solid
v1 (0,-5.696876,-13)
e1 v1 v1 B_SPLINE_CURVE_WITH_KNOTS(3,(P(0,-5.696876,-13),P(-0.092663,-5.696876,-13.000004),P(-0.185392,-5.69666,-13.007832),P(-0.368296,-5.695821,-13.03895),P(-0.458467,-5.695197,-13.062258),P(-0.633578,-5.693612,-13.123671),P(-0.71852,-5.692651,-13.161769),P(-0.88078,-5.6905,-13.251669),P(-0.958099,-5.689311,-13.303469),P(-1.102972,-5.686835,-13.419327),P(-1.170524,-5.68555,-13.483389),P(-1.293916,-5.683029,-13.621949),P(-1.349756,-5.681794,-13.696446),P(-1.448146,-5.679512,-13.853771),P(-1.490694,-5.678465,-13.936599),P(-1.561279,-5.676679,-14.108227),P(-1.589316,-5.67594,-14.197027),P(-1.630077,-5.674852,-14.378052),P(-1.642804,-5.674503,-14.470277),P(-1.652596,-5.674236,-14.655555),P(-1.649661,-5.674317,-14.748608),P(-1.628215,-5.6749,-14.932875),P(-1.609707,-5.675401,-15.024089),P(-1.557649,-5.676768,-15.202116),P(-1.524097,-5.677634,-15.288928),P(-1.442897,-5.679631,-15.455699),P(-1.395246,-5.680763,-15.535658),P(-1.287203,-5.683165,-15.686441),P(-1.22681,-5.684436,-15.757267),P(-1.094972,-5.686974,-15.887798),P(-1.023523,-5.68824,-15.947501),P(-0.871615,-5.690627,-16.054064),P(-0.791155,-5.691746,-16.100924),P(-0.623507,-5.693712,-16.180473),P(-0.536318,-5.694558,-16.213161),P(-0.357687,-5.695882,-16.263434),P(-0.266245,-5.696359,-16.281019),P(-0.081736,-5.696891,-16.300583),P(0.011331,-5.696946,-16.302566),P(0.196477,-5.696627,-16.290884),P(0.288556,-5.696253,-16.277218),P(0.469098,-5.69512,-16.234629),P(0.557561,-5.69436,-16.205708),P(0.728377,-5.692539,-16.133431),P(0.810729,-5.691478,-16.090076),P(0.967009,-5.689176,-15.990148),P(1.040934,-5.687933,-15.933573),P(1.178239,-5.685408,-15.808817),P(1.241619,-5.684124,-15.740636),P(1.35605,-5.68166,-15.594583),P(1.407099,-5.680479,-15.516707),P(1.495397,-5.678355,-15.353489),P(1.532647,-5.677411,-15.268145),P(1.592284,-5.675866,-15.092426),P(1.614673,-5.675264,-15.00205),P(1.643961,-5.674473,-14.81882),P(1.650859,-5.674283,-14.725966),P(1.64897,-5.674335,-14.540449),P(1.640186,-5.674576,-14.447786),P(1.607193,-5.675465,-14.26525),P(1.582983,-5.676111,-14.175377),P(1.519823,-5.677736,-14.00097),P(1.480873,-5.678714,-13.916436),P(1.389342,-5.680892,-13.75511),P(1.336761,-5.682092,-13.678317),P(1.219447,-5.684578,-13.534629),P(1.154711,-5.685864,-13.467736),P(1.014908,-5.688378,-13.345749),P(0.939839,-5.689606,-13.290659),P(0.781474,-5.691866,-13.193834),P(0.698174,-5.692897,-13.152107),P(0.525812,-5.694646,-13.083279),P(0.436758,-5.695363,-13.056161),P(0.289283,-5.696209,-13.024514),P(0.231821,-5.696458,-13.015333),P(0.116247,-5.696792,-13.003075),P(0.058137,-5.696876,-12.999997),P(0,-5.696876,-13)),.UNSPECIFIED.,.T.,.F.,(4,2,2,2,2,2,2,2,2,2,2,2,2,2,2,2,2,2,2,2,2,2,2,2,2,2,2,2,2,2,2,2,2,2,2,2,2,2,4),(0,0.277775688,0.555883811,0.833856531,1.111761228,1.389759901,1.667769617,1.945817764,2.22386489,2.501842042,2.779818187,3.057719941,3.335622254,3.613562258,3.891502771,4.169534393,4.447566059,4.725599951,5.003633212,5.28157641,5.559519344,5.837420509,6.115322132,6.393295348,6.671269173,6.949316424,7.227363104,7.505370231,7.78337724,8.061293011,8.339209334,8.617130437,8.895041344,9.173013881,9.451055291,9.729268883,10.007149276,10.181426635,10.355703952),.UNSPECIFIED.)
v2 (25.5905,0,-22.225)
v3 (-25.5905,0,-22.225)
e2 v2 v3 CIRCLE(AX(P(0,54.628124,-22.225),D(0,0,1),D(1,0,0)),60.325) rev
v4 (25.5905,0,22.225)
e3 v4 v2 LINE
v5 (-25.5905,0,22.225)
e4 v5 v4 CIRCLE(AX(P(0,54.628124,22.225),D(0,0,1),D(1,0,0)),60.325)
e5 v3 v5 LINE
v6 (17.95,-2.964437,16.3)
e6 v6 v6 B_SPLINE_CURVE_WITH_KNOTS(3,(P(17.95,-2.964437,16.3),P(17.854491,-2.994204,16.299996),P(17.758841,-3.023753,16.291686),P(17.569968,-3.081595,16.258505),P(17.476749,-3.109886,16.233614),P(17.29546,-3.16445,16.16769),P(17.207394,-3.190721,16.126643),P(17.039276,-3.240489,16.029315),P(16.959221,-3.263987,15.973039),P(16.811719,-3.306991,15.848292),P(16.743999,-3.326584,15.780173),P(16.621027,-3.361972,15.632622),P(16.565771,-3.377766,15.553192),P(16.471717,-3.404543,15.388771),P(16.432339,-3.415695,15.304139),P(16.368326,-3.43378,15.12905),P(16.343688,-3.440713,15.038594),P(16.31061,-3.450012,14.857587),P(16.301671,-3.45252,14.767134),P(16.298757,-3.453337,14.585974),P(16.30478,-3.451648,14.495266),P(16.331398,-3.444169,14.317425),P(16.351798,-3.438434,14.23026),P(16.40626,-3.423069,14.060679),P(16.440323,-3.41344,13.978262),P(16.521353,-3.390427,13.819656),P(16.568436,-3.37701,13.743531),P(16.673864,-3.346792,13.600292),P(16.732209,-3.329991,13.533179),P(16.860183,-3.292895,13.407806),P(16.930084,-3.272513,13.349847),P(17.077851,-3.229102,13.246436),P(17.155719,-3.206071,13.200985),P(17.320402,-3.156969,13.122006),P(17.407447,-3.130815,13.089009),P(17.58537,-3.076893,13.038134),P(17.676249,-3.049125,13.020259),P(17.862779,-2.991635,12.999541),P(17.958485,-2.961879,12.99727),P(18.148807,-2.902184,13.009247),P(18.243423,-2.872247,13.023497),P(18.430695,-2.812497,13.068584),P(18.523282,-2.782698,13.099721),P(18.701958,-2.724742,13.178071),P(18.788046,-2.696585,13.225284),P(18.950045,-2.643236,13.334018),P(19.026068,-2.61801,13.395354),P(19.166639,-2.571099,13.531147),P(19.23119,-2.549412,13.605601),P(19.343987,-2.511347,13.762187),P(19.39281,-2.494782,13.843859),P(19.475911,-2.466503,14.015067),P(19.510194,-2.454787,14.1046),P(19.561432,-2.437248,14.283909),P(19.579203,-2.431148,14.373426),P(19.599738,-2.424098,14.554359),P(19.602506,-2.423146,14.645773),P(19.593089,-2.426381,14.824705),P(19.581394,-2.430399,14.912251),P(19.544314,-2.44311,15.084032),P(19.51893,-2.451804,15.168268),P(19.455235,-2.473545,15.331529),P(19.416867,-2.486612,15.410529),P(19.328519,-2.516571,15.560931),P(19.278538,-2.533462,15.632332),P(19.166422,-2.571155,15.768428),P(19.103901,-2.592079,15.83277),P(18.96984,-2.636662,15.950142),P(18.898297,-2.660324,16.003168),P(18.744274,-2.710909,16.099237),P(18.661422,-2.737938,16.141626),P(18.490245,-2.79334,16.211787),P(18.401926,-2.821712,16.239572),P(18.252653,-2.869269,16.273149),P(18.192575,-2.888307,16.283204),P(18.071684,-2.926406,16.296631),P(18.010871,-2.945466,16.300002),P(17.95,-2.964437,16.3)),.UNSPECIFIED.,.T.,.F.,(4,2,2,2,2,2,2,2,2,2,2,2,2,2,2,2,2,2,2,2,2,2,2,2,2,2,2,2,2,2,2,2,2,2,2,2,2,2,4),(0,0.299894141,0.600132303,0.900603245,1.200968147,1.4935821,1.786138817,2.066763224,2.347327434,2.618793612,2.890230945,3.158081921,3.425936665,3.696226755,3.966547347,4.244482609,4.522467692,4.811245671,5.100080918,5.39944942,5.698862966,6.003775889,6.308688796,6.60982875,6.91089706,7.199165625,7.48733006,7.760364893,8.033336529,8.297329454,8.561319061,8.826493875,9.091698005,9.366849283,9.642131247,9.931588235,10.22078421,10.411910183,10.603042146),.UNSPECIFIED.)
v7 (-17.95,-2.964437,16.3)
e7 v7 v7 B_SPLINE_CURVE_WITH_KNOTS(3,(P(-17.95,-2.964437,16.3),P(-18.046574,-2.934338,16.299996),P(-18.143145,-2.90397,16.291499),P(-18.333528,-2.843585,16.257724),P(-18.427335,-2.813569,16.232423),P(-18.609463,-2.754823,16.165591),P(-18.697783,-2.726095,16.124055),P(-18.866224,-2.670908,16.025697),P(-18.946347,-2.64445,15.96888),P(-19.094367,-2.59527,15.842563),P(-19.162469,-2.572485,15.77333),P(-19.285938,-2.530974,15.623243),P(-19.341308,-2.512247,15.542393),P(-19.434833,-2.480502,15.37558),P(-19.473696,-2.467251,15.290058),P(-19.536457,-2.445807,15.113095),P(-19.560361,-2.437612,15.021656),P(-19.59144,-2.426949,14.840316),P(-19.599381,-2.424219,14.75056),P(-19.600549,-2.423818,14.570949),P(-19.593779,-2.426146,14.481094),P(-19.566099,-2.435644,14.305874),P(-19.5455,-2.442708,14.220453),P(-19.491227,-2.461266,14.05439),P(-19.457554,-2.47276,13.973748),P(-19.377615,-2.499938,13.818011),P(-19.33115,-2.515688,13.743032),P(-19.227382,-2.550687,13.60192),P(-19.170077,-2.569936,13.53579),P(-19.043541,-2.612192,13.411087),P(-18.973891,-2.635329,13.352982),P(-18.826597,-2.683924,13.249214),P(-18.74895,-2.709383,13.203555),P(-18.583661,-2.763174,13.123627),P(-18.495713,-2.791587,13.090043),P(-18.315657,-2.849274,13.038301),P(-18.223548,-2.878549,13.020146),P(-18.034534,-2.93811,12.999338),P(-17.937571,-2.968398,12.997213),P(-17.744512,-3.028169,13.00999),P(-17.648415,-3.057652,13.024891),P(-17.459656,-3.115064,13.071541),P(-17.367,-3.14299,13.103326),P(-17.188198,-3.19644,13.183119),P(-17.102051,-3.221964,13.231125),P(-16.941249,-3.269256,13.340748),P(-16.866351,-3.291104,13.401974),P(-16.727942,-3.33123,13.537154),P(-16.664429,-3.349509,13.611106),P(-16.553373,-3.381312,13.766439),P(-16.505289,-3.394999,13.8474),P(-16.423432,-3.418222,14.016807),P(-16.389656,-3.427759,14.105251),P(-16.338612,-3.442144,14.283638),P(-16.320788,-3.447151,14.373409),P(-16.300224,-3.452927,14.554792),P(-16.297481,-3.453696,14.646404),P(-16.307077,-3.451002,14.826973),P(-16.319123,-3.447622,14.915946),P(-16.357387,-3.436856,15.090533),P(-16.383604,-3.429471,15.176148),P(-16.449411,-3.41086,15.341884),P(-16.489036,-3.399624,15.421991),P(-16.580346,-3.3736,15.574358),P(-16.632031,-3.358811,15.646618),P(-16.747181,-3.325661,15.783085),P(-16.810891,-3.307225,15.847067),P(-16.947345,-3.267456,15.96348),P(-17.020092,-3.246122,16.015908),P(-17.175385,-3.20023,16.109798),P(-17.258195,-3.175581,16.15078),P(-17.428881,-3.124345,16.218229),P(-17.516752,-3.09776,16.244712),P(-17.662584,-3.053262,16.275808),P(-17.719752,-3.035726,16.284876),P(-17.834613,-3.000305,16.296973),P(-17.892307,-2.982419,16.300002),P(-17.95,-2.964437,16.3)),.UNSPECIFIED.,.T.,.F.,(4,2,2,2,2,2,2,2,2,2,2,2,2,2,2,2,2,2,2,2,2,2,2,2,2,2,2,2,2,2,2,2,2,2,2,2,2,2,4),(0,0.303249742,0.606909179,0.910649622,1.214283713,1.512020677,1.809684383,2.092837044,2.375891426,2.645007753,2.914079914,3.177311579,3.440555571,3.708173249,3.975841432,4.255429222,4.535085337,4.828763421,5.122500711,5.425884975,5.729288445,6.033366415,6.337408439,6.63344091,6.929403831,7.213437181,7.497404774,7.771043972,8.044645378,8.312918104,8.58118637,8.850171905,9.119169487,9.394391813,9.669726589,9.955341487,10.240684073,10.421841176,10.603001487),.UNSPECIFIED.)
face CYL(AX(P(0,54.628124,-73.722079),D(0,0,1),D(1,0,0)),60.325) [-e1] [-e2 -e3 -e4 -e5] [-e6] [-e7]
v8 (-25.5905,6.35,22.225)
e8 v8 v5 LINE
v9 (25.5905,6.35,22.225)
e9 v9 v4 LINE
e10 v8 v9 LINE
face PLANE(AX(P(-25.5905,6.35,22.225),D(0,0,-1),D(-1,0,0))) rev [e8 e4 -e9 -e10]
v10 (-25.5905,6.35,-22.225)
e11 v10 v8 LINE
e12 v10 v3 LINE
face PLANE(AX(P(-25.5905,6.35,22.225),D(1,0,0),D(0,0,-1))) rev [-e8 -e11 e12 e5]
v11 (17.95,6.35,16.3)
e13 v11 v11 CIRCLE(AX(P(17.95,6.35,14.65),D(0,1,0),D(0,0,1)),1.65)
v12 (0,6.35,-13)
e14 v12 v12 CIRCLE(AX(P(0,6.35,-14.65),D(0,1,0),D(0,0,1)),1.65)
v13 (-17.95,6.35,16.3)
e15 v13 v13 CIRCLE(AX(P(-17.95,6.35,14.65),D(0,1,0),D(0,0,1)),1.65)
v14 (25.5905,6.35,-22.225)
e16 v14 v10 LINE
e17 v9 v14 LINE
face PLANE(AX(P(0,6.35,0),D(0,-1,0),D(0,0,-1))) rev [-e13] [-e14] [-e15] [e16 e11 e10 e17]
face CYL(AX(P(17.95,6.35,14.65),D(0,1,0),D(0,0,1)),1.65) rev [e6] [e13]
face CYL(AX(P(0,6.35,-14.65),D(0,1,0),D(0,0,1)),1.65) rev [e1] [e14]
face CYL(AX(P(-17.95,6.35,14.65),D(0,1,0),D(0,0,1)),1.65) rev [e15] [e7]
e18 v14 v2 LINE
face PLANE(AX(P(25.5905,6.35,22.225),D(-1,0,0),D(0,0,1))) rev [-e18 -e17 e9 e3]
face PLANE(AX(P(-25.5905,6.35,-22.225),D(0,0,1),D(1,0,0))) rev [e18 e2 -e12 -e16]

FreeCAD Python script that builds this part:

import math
import FreeCAD as App
import Part
import Sketcher
Q = App.Units.Quantity

doc = App.newDocument("Part")
body = doc.addObject("PartDesign::Body", "Body")

# Sketch on XZ plane
sketch1 = body.newObject("Sketcher::SketchObject", "Sketch")
sketch1.AttachmentSupport = (doc.getObject("XZ_Plane"), [""])
sketch1.MapMode = "FlatFace"
sketch1.addGeometry([
    Part.LineSegment(App.Vector(-26, -22, 0), App.Vector(-26, 22, 0)),
    Part.LineSegment(App.Vector(-26, 22, 0), App.Vector(26, 22, 0)),
    Part.LineSegment(App.Vector(26, 22, 0), App.Vector(26, -22, 0)),
    Part.LineSegment(App.Vector(26, -22, 0), App.Vector(-26, -22, 0)),
], False)
sketch1.addConstraint([
    Sketcher.Constraint("Coincident", 0, 2, 1, 1),
    Sketcher.Constraint("Coincident", 1, 2, 2, 1),
    Sketcher.Constraint("Coincident", 2, 2, 3, 1),
    Sketcher.Constraint("Coincident", 3, 2, 0, 1),
    Sketcher.Constraint("Vertical", 0),
    Sketcher.Constraint("Horizontal", 1),
    Sketcher.Constraint("Vertical", 2),
    Sketcher.Constraint("Horizontal", 3),
    Sketcher.Constraint("Symmetric", 0, 2, 2, 2, -1, 1),
    Sketcher.Constraint("DistanceY", 0, 1, 0, 2, Q("1.75 in")),
    Sketcher.Constraint("DistanceX", 1, 1, 1, 2, Q("2.015 in")),
])
pad1 = body.newObject("PartDesign::Pad", "Pad")
pad1.Profile = sketch1
pad1.Length = Q("0.25 in")
pad1.Reversed = True

# Sketch on XY plane
sketch2 = body.newObject("Sketcher::SketchObject", "Sketch001")
sketch2.AttachmentSupport = (doc.getObject("XY_Plane"), [""])
sketch2.MapMode = "FlatFace"
sketch2.AttachmentOffset = App.Placement(App.Vector(0, 0, 0.875 * 25.4), App.Rotation())
sketch2.addGeometry([
    Part.LineSegment(App.Vector(26, 0, 0), App.Vector(-26, 0, 0)),
    Part.ArcOfCircle(Part.Circle(App.Vector(0, 55, 0), App.Vector(0, 0, 1), 60), math.radians(-115), math.radians(-65)),
], False)
sketch2.addConstraint([
    Sketcher.Constraint("Coincident", 0, 1, 1, 2),
    Sketcher.Constraint("Coincident", 1, 1, 0, 2),
    Sketcher.Constraint("Horizontal", 0),
    Sketcher.Constraint("Symmetric", 0, 1, 1, 1, -1, 1),
    Sketcher.Constraint("Radius", 1, Q("2.375 in")),
    Sketcher.Constraint("DistanceX", 0, 2, 0, 1, Q("2.015 in")),
])
pad2 = body.newObject("PartDesign::Pad", "Pad001")
pad2.Profile = sketch2
pad2.Length = Q("1.75 in")
pad2.Reversed = True

# Sketch on XZ plane
sketch3 = body.newObject("Sketcher::SketchObject", "Sketch002")
sketch3.AttachmentSupport = (doc.getObject("XZ_Plane"), [""])
sketch3.MapMode = "FlatFace"
sketch3.AttachmentOffset = App.Placement(App.Vector(0, 0, -0.25 * 25.4), App.Rotation())
sketch3.addGeometry([
    Part.Circle(App.Vector(0, -14.7, 0), App.Vector(0, 0, 1), 1.6),
    Part.Circle(App.Vector(-18, 14.7, 0), App.Vector(0, 0, 1), 1.6),
    Part.Circle(App.Vector(18, 14.7, 0), App.Vector(0, 0, 1), 1.6),
], False)
sketch3.addConstraint([
    Sketcher.Constraint("Equal", 0, 1),
    Sketcher.Constraint("Equal", 1, 2),
    Sketcher.Constraint("Symmetric", 1, 3, 2, 3, -2),
    Sketcher.Constraint("PointOnObject", 0, 3, -2),
    Sketcher.Constraint("Diameter", 0, 3.3),
    Sketcher.Constraint("DistanceY", 0, 3, -1, 1, 14.65),
    Sketcher.Constraint("DistanceX", 1, 3, -1, 1, 17.95),
    Sketcher.Constraint("DistanceY", -1, 1, 1, 3, 14.65),
])
doc.recompute()
hole = body.newObject("PartDesign::Hole", "Hole")
hole.Profile = sketch3
hole.ThreadType = "None"
hole.Diameter = 3.3
hole.DepthType = "ThroughAll"
hole.Reversed = True

doc.recompute()
